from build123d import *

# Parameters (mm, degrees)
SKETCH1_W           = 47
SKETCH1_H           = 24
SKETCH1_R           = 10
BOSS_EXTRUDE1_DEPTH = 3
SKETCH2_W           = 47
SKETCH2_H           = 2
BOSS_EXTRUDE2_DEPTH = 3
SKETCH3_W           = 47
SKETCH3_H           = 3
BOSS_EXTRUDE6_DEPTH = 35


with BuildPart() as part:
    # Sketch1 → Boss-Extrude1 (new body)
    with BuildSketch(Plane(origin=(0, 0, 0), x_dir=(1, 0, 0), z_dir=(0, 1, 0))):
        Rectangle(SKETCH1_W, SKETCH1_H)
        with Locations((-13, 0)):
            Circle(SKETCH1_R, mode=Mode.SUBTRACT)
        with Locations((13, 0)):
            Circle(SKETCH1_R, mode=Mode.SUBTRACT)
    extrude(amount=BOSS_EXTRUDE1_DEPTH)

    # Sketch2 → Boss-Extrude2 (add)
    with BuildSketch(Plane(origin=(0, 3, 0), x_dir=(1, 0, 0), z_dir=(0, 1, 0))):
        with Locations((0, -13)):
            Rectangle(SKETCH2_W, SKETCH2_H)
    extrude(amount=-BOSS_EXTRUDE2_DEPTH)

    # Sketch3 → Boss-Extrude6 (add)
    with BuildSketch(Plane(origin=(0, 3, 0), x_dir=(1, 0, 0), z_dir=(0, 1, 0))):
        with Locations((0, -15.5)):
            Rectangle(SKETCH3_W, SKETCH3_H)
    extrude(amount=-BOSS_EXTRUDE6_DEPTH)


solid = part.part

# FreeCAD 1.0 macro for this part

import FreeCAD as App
import Part
import Sketcher

V = App.Vector
Q = App.Units.Quantity


def add_polygon(sketch, points):
    """Adds a closed chain of lines whose ends are joined by coincident constraints."""
    first, n = sketch.GeometryCount, len(points)
    for a, b in zip(points, points[1:] + points[:1]):
        sketch.addGeometry(Part.LineSegment(App.Vector(*a, 0), App.Vector(*b, 0)), False)
    for i in range(n):
        sketch.addConstraint(Sketcher.Constraint("Coincident", first + i, 2, first + (i + 1) % n, 1))

doc = App.newDocument("Part")
body = doc.addObject("PartDesign::Body", "Body")

# Sketch on XZ plane
sketch1 = body.newObject("Sketcher::SketchObject", "Sketch")
sketch1.AttachmentSupport = (doc.getObject("XZ_Plane"), [""])
sketch1.MapMode = "FlatFace"
add_polygon(sketch1, [(-23.5, -12), (-23.5, 12), (23.5, 12), (23.5, -12)])  # lines 0-3
sketch1.addGeometry(Part.Circle(V(-13, 0, 0), V(0, 0, 1), 10), False)  # 4
sketch1.addGeometry(Part.Circle(V(13, 0, 0), V(0, 0, 1), 10), False)  # 5
sketch1.addConstraint([
    Sketcher.Constraint("Vertical", 0),
    Sketcher.Constraint("Horizontal", 1),
    Sketcher.Constraint("Vertical", 2),
    Sketcher.Constraint("Horizontal", 3),
    Sketcher.Constraint("Equal", 4, 5),
    Sketcher.Constraint("Symmetric", 4, 3, 5, 3, -1, 1),
    Sketcher.Constraint("Symmetric", 0, 2, 2, 2, -1, 1),
    Sketcher.Constraint("PointOnObject", 4, 3, -1),
    Sketcher.Constraint("Diameter", 4, Q("20 mm")),
    Sketcher.Constraint("DistanceX", 1, 1, 1, 2, Q("47 mm")),
    Sketcher.Constraint("DistanceY", 0, 1, 0, 2, Q("24 mm")),
    Sketcher.Constraint("DistanceX", 4, 3, -1, 1, Q("13 mm")),
])
pad1 = body.newObject("PartDesign::Pad", "Pad")
pad1.Profile = sketch1
pad1.Length = 3
pad1.Reversed = True

# Sketch on XZ plane
sketch2 = body.newObject("Sketcher::SketchObject", "Sketch001")
sketch2.AttachmentSupport = (doc.getObject("XZ_Plane"), [""])
sketch2.MapMode = "FlatFace"
sketch2.AttachmentOffset = App.Placement(V(0, 0, -3), App.Rotation())
add_polygon(sketch2, [(-23.5, 12), (-23.5, 14), (23.5, 14), (23.5, 12)])  # lines 0-3
sketch2.addConstraint([
    Sketcher.Constraint("Vertical", 0),
    Sketcher.Constraint("Horizontal", 1),
    Sketcher.Constraint("Vertical", 2),
    Sketcher.Constraint("Horizontal", 3),
    Sketcher.Constraint("DistanceX", 1, 1, 1, 2, Q("47 mm")),
    Sketcher.Constraint("DistanceY", 0, 1, 0, 2, Q("2 mm")),
    Sketcher.Constraint("DistanceY", -1, 1, 0, 2, Q("14 mm")),
    Sketcher.Constraint("DistanceX", 0, 2, -1, 1, Q("23.5 mm")),
])
pad2 = body.newObject("PartDesign::Pad", "Pad001")
pad2.Profile = sketch2
pad2.Length = 3

# Sketch on XZ plane
sketch3 = body.newObject("Sketcher::SketchObject", "Sketch002")
sketch3.AttachmentSupport = (doc.getObject("XZ_Plane"), [""])
sketch3.MapMode = "FlatFace"
sketch3.AttachmentOffset = App.Placement(V(0, 0, -3), App.Rotation())
add_polygon(sketch3, [(-23.5, 14), (-23.5, 17), (23.5, 17), (23.5, 14)])  # lines 0-3
sketch3.addConstraint([
    Sketcher.Constraint("Vertical", 0),
    Sketcher.Constraint("Horizontal", 1),
    Sketcher.Constraint("Vertical", 2),
    Sketcher.Constraint("Horizontal", 3),
    Sketcher.Constraint("DistanceX", 1, 1, 1, 2, Q("47 mm")),
    Sketcher.Constraint("DistanceY", 0, 1, 0, 2, Q("3 mm")),
    Sketcher.Constraint("DistanceY", -1, 1, 0, 2, Q("17 mm")),
    Sketcher.Constraint("DistanceX", 0, 2, -1, 1, Q("23.5 mm")),
])
pad3 = body.newObject("PartDesign::Pad", "Pad002")
pad3.Profile = sketch3
pad3.Length = 35

doc.recompute()
